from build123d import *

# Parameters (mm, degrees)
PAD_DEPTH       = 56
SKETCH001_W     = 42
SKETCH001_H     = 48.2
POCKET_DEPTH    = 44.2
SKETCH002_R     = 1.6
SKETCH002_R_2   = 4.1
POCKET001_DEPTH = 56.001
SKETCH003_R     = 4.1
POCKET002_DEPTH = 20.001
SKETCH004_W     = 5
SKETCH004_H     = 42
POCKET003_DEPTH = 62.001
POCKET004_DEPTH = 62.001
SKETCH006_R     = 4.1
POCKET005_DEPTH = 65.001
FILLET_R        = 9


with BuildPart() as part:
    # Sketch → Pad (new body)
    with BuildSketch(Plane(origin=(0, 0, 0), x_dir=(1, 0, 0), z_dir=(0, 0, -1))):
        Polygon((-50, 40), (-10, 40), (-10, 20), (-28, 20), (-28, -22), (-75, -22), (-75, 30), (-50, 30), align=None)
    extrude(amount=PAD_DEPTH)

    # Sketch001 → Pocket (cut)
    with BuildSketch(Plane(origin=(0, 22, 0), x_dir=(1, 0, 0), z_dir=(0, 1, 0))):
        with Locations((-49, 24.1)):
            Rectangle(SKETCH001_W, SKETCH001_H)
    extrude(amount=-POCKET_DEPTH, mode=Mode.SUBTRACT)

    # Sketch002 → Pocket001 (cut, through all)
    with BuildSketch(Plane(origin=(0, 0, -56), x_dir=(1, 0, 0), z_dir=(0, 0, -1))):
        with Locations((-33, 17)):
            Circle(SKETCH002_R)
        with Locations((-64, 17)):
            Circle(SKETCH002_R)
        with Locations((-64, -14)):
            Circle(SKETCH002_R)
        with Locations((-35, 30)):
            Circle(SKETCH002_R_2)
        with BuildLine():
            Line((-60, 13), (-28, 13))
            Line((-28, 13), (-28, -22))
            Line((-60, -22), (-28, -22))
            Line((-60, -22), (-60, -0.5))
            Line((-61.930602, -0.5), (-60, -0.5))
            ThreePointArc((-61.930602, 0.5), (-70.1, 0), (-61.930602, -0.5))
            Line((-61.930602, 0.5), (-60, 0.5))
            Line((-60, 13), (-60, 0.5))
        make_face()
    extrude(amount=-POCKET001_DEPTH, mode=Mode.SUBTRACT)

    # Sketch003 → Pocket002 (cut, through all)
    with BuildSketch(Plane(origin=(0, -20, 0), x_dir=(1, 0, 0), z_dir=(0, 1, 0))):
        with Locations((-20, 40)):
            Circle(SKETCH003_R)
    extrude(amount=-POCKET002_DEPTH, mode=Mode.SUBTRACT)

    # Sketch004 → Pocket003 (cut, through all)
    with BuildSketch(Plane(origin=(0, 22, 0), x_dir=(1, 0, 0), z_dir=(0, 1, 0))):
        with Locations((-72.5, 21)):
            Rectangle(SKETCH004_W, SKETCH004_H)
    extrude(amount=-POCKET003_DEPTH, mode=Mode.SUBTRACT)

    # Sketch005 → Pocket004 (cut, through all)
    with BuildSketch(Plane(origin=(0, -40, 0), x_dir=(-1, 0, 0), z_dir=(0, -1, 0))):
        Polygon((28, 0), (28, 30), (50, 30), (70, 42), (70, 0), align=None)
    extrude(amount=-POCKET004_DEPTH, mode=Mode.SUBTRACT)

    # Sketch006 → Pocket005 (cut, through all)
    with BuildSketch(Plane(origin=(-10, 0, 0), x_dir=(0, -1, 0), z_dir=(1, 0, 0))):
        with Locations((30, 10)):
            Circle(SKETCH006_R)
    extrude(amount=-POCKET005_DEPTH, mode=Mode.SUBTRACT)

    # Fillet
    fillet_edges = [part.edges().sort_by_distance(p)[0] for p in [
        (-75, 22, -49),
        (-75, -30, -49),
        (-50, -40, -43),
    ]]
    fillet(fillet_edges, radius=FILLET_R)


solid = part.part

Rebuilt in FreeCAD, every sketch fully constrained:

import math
import FreeCAD as App
import Part
import Sketcher
Q = App.Units.Quantity


def edges_at(feature, points):
    """Names of the edges that pass closest to the given points."""
    edges = feature.Shape.Edges
    near = lambda p: min(range(len(edges)), key=lambda i: edges[i].distToShape(Part.Vertex(*p))[0])
    return sorted({f"Edge{near(p) + 1}" for p in points})

doc = App.newDocument("Part")
params = doc.addObject("Spreadsheet::Sheet", "Params")
for row, (alias, value) in enumerate([
    ("sketch1_width", "40 mm"),
    ("sketch1_width2", "25 mm"),
    ("sketch1_width3", "47 mm"),
    ("sketch1_height", "10 mm"),
    ("sketch1_height2", "52 mm"),
    ("pad1_length", "56 mm"),
    ("sketch2_width", "42 mm"),
    ("sketch2_height", "48.2 mm"),
    ("pocket1_length", "44.2 mm"),
    ("sketch3_diameter", "3.2 mm"),
    ("sketch3_diameter2", "8.2 mm"),
    ("sketch3_width", "32 mm"),
    ("sketch3_height", "35 mm"),
    ("sketch3_height2", "12.5 mm"),
    ("sketch4_diameter", "8.2 mm"),
    ("sketch5_width", "5 mm"),
    ("sketch5_height", "42 mm"),
    ("sketch6_width", "42 mm"),
    ("sketch6_width2", "22 mm"),
    ("sketch6_height", "30 mm"),
    ("sketch7_diameter", "8.2 mm"),
    ("fillet_radius", "9 mm"),
], start=1):
    params.set(f"A{row}", alias)
    params.set(f"B{row}", "=" + value)
    params.setAlias(f"B{row}", alias)

body = doc.addObject("PartDesign::Body", "Body")

sketch1 = body.newObject("Sketcher::SketchObject", "Sketch")
sketch1.AttachmentSupport = (doc.getObject("XY_Plane"), [""])
sketch1.MapMode = "FlatFace"
sketch1.addGeometry(Part.LineSegment(App.Vector(-10, -40, 0), App.Vector(-50, -40, 0)), False)
sketch1.addGeometry(Part.LineSegment(App.Vector(-50, -40, 0), App.Vector(-50, -30, 0)), False)
sketch1.addGeometry(Part.LineSegment(App.Vector(-50, -30, 0), App.Vector(-75, -30, 0)), False)
sketch1.addGeometry(Part.LineSegment(App.Vector(-75, -30, 0), App.Vector(-75, 22, 0)), False)
sketch1.addGeometry(Part.LineSegment(App.Vector(-75, 22, 0), App.Vector(-28, 22, 0)), False)
sketch1.addGeometry(Part.LineSegment(App.Vector(-28, 22, 0), App.Vector(-28, -20, 0)), False)
sketch1.addGeometry(Part.LineSegment(App.Vector(-28, -20, 0), App.Vector(-10, -20, 0)), False)
sketch1.addGeometry(Part.LineSegment(App.Vector(-10, -20, 0), App.Vector(-10, -40, 0)), False)
sketch1.addConstraint(Sketcher.Constraint("Coincident", 0, 2, 1, 1))
sketch1.addConstraint(Sketcher.Constraint("Coincident", 1, 2, 2, 1))
sketch1.addConstraint(Sketcher.Constraint("Coincident", 2, 2, 3, 1))
sketch1.addConstraint(Sketcher.Constraint("Coincident", 3, 2, 4, 1))
sketch1.addConstraint(Sketcher.Constraint("Coincident", 4, 2, 5, 1))
sketch1.addConstraint(Sketcher.Constraint("Coincident", 5, 2, 6, 1))
sketch1.addConstraint(Sketcher.Constraint("Coincident", 6, 2, 7, 1))
sketch1.addConstraint(Sketcher.Constraint("Coincident", 7, 2, 0, 1))
sketch1.addConstraint(Sketcher.Constraint("Horizontal", 0))
sketch1.addConstraint(Sketcher.Constraint("Vertical", 1))
sketch1.addConstraint(Sketcher.Constraint("Horizontal", 2))
sketch1.addConstraint(Sketcher.Constraint("Vertical", 3))
sketch1.addConstraint(Sketcher.Constraint("Horizontal", 4))
sketch1.addConstraint(Sketcher.Constraint("Vertical", 5))
sketch1.addConstraint(Sketcher.Constraint("Horizontal", 6))
sketch1.addConstraint(Sketcher.Constraint("Vertical", 7))
sketch1.addConstraint(Sketcher.Constraint("DistanceX", 0, 2, 0, 1, Q("40 mm")))
sketch1.addConstraint(Sketcher.Constraint("DistanceX", 2, 2, 2, 1, Q("25 mm")))
sketch1.addConstraint(Sketcher.Constraint("DistanceX", 4, 1, 4, 2, Q("47 mm")))
sketch1.addConstraint(Sketcher.Constraint("DistanceY", 1, 1, 1, 2, Q("10 mm")))
sketch1.addConstraint(Sketcher.Constraint("DistanceY", 3, 1, 3, 2, Q("52 mm")))
sketch1.addConstraint(Sketcher.Constraint("DistanceY", 5, 2, 5, 1, Q("42 mm")))
sketch1.addConstraint(Sketcher.Constraint("DistanceX", 0, 2, -1, 1, Q("50 mm")))
sketch1.addConstraint(Sketcher.Constraint("DistanceY", 0, 2, -1, 1, Q("40 mm")))
sketch1.setExpression("Constraints[16]", "Params.sketch1_width")
sketch1.setExpression("Constraints[17]", "Params.sketch1_width2")
sketch1.setExpression("Constraints[18]", "Params.sketch1_width3")
sketch1.setExpression("Constraints[19]", "Params.sketch1_height")
sketch1.setExpression("Constraints[20]", "Params.sketch1_height2")
pad1 = body.newObject("PartDesign::Pad", "Pad")
pad1.Profile = sketch1
pad1.setExpression("Length", "Params.pad1_length")
pad1.Reversed = True

sketch2 = body.newObject("Sketcher::SketchObject", "Sketch001")
sketch2.AttachmentSupport = (doc.getObject("XZ_Plane"), [""])
sketch2.MapMode = "FlatFace"
sketch2.AttachmentOffset = App.Placement(App.Vector(0, 0, -22), App.Rotation())
sketch2.addGeometry(Part.LineSegment(App.Vector(-70, -48.2, 0), App.Vector(-70, 0, 0)), False)
sketch2.addGeometry(Part.LineSegment(App.Vector(-70, 0, 0), App.Vector(-28, 0, 0)), False)
sketch2.addGeometry(Part.LineSegment(App.Vector(-28, 0, 0), App.Vector(-28, -48.2, 0)), False)
sketch2.addGeometry(Part.LineSegment(App.Vector(-28, -48.2, 0), App.Vector(-70, -48.2, 0)), False)
sketch2.addConstraint(Sketcher.Constraint("Coincident", 0, 2, 1, 1))
sketch2.addConstraint(Sketcher.Constraint("Coincident", 1, 2, 2, 1))
sketch2.addConstraint(Sketcher.Constraint("Coincident", 2, 2, 3, 1))
sketch2.addConstraint(Sketcher.Constraint("Coincident", 3, 2, 0, 1))
sketch2.addConstraint(Sketcher.Constraint("Vertical", 0))
sketch2.addConstraint(Sketcher.Constraint("Horizontal", 1))
sketch2.addConstraint(Sketcher.Constraint("Vertical", 2))
sketch2.addConstraint(Sketcher.Constraint("Horizontal", 3))
sketch2.addConstraint(Sketcher.Constraint("PointOnObject", 0, 2, -1))
sketch2.addConstraint(Sketcher.Constraint("DistanceX", 1, 1, 1, 2, Q("42 mm")))
sketch2.addConstraint(Sketcher.Constraint("DistanceY", 0, 1, 0, 2, Q("48.2 mm")))
sketch2.addConstraint(Sketcher.Constraint("DistanceX", 0, 2, -1, 1, Q("70 mm")))
sketch2.setExpression("Constraints[9]", "Params.sketch2_width")
sketch2.setExpression("Constraints[10]", "Params.sketch2_height")
pocket1 = body.newObject("PartDesign::Pocket", "Pocket")
pocket1.Profile = sketch2
pocket1.setExpression("Length", "Params.pocket1_length")
pocket1.Reversed = True

sketch3 = body.newObject("Sketcher::SketchObject", "Sketch002")
sketch3.AttachmentSupport = (doc.getObject("XY_Plane"), [""])
sketch3.MapMode = "FlatFace"
sketch3.AttachmentOffset = App.Placement(App.Vector(0, 0, -56), App.Rotation())
sketch3.addGeometry(Part.Circle(App.Vector(-33, -17, 0), App.Vector(0, 0, 1), 1.6), False)
sketch3.addGeometry(Part.Circle(App.Vector(-64, -17, 0), App.Vector(0, 0, 1), 1.6), False)
sketch3.addGeometry(Part.Circle(App.Vector(-64, 14, 0), App.Vector(0, 0, 1), 1.6), False)
sketch3.addGeometry(Part.Circle(App.Vector(-35, -30, 0), App.Vector(0, 0, 1), 4.1), False)
sketch3.addGeometry(Part.LineSegment(App.Vector(-28, -13, 0), App.Vector(-60, -13, 0)), False)
sketch3.addGeometry(Part.LineSegment(App.Vector(-60, -13, 0), App.Vector(-60, -0.5, 0)), False)
sketch3.addGeometry(Part.LineSegment(App.Vector(-60, -0.5, 0), App.Vector(-61.930602, -0.5, 0)), False)
sketch3.addGeometry(Part.ArcOfCircle(Part.Circle(App.Vector(-66, 0, 0), App.Vector(0, 0, 1), 4.1), math.radians(7.004726), math.radians(352.995274)), False)
sketch3.addGeometry(Part.LineSegment(App.Vector(-61.930602, 0.5, 0), App.Vector(-60, 0.5, 0)), False)
sketch3.addGeometry(Part.LineSegment(App.Vector(-60, 0.5, 0), App.Vector(-60, 22, 0)), False)
sketch3.addGeometry(Part.LineSegment(App.Vector(-60, 22, 0), App.Vector(-28, 22, 0)), False)
sketch3.addGeometry(Part.LineSegment(App.Vector(-28, 22, 0), App.Vector(-28, -13, 0)), False)
sketch3.addConstraint(Sketcher.Constraint("Coincident", 4, 2, 5, 1))
sketch3.addConstraint(Sketcher.Constraint("Coincident", 5, 2, 6, 1))
sketch3.addConstraint(Sketcher.Constraint("Coincident", 6, 2, 7, 2))
sketch3.addConstraint(Sketcher.Constraint("Coincident", 7, 1, 8, 1))
sketch3.addConstraint(Sketcher.Constraint("Coincident", 8, 2, 9, 1))
sketch3.addConstraint(Sketcher.Constraint("Coincident", 9, 2, 10, 1))
sketch3.addConstraint(Sketcher.Constraint("Coincident", 10, 2, 11, 1))
sketch3.addConstraint(Sketcher.Constraint("Coincident", 11, 2, 4, 1))
sketch3.addConstraint(Sketcher.Constraint("Horizontal", 4))
sketch3.addConstraint(Sketcher.Constraint("Vertical", 5))
sketch3.addConstraint(Sketcher.Constraint("Horizontal", 6))
sketch3.addConstraint(Sketcher.Constraint("Horizontal", 8))
sketch3.addConstraint(Sketcher.Constraint("Vertical", 9))
sketch3.addConstraint(Sketcher.Constraint("Horizontal", 10))
sketch3.addConstraint(Sketcher.Constraint("Vertical", 11))
sketch3.addConstraint(Sketcher.Constraint("Equal", 0, 1))
sketch3.addConstraint(Sketcher.Constraint("Equal", 1, 2))
sketch3.addConstraint(Sketcher.Constraint("Equal", 3, 7))
sketch3.addConstraint(Sketcher.Constraint("Symmetric", 6, 2, 7, 1, -1))
sketch3.addConstraint(Sketcher.Constraint("Horizontal", 0, 3, 1, 3))
sketch3.addConstraint(Sketcher.Constraint("Vertical", 1, 3, 2, 3))
sketch3.addConstraint(Sketcher.Constraint("Vertical", 5, 2, 8, 2))
sketch3.addConstraint(Sketcher.Constraint("Diameter", 0, Q("3.2 mm")))
sketch3.addConstraint(Sketcher.Constraint("Diameter", 3, Q("8.2 mm")))
sketch3.addConstraint(Sketcher.Constraint("DistanceX", 4, 2, 4, 1, Q("32 mm")))
sketch3.addConstraint(Sketcher.Constraint("DistanceY", 11, 2, 11, 1, Q("35 mm")))
sketch3.addConstraint(Sketcher.Constraint("DistanceY", 5, 1, 5, 2, Q("12.5 mm")))
sketch3.addConstraint(Sketcher.Constraint("DistanceY", 9, 1, 9, 2, Q("21.5 mm")))
sketch3.addConstraint(Sketcher.Constraint("DistanceX", 0, 3, -1, 1, Q("33 mm")))
sketch3.addConstraint(Sketcher.Constraint("DistanceY", 0, 3, -1, 1, Q("17 mm")))
sketch3.addConstraint(Sketcher.Constraint("DistanceX", 1, 3, -1, 1, Q("64 mm")))
sketch3.addConstraint(Sketcher.Constraint("DistanceY", -1, 1, 2, 3, Q("14 mm")))
sketch3.addConstraint(Sketcher.Constraint("DistanceX", 3, 3, -1, 1, Q("35 mm")))
sketch3.addConstraint(Sketcher.Constraint("DistanceY", 3, 3, -1, 1, Q("30 mm")))
sketch3.addConstraint(Sketcher.Constraint("DistanceX", 7, 3, -1, 1, Q("66 mm")))
sketch3.addConstraint(Sketcher.Constraint("DistanceX", 4, 2, -1, 1, Q("60 mm")))
sketch3.setExpression("Constraints[22]", "Params.sketch3_diameter")
sketch3.setExpression("Constraints[23]", "Params.sketch3_diameter2")
sketch3.setExpression("Constraints[24]", "Params.sketch3_width")
sketch3.setExpression("Constraints[25]", "Params.sketch3_height")
sketch3.setExpression("Constraints[26]", "Params.sketch3_height2")
pocket2 = body.newObject("PartDesign::Pocket", "Pocket001")
pocket2.Profile = sketch3
pocket2.Type = "ThroughAll"
pocket2.Reversed = True

sketch4 = body.newObject("Sketcher::SketchObject", "Sketch003")
sketch4.AttachmentSupport = (doc.getObject("XZ_Plane"), [""])
sketch4.MapMode = "FlatFace"
sketch4.AttachmentOffset = App.Placement(App.Vector(0, 0, 20), App.Rotation())
sketch4.addGeometry(Part.Circle(App.Vector(-20, -40, 0), App.Vector(0, 0, 1), 4.1), False)
sketch4.addConstraint(Sketcher.Constraint("Diameter", 0, Q("8.2 mm")))
sketch4.addConstraint(Sketcher.Constraint("DistanceX", 0, 3, -1, 1, Q("20 mm")))
sketch4.addConstraint(Sketcher.Constraint("DistanceY", 0, 3, -1, 1, Q("40 mm")))
sketch4.setExpression("Constraints[0]", "Params.sketch4_diameter")
pocket3 = body.newObject("PartDesign::Pocket", "Pocket002")
pocket3.Profile = sketch4
pocket3.Type = "ThroughAll"
pocket3.Reversed = True

sketch5 = body.newObject("Sketcher::SketchObject", "Sketch004")
sketch5.AttachmentSupport = (doc.getObject("XZ_Plane"), [""])
sketch5.MapMode = "FlatFace"
sketch5.AttachmentOffset = App.Placement(App.Vector(0, 0, -22), App.Rotation())
sketch5.addGeometry(Part.LineSegment(App.Vector(-75, -42, 0), App.Vector(-75, 0, 0)), False)
sketch5.addGeometry(Part.LineSegment(App.Vector(-75, 0, 0), App.Vector(-70, 0, 0)), False)
sketch5.addGeometry(Part.LineSegment(App.Vector(-70, 0, 0), App.Vector(-70, -42, 0)), False)
sketch5.addGeometry(Part.LineSegment(App.Vector(-70, -42, 0), App.Vector(-75, -42, 0)), False)
sketch5.addConstraint(Sketcher.Constraint("Coincident", 0, 2, 1, 1))
sketch5.addConstraint(Sketcher.Constraint("Coincident", 1, 2, 2, 1))
sketch5.addConstraint(Sketcher.Constraint("Coincident", 2, 2, 3, 1))
sketch5.addConstraint(Sketcher.Constraint("Coincident", 3, 2, 0, 1))
sketch5.addConstraint(Sketcher.Constraint("Vertical", 0))
sketch5.addConstraint(Sketcher.Constraint("Horizontal", 1))
sketch5.addConstraint(Sketcher.Constraint("Vertical", 2))
sketch5.addConstraint(Sketcher.Constraint("Horizontal", 3))
sketch5.addConstraint(Sketcher.Constraint("PointOnObject", 0, 2, -1))
sketch5.addConstraint(Sketcher.Constraint("DistanceX", 1, 1, 1, 2, Q("5 mm")))
sketch5.addConstraint(Sketcher.Constraint("DistanceY", 0, 1, 0, 2, Q("42 mm")))
sketch5.addConstraint(Sketcher.Constraint("DistanceX", 0, 2, -1, 1, Q("75 mm")))
sketch5.setExpression("Constraints[9]", "Params.sketch5_width")
sketch5.setExpression("Constraints[10]", "Params.sketch5_height")
pocket4 = body.newObject("PartDesign::Pocket", "Pocket003")
pocket4.Profile = sketch5
pocket4.Type = "ThroughAll"
pocket4.Reversed = True

sketch6 = body.newObject("Sketcher::SketchObject", "Sketch005")
sketch6.AttachmentSupport = (doc.getObject("XZ_Plane"), [""])
sketch6.MapMode = "FlatFace"
sketch6.AttachmentOffset = App.Placement(App.Vector(0, 0, 40), App.Rotation())
sketch6.addGeometry(Part.LineSegment(App.Vector(-28, -30, 0), App.Vector(-28, 0, 0)), False)
sketch6.addGeometry(Part.LineSegment(App.Vector(-28, 0, 0), App.Vector(-70, 0, 0)), False)
sketch6.addGeometry(Part.LineSegment(App.Vector(-70, 0, 0), App.Vector(-70, -42, 0)), False)
sketch6.addGeometry(Part.LineSegment(App.Vector(-70, -42, 0), App.Vector(-50, -30, 0)), False)
sketch6.addGeometry(Part.LineSegment(App.Vector(-50, -30, 0), App.Vector(-28, -30, 0)), False)
sketch6.addConstraint(Sketcher.Constraint("Coincident", 0, 2, 1, 1))
sketch6.addConstraint(Sketcher.Constraint("Coincident", 1, 2, 2, 1))
sketch6.addConstraint(Sketcher.Constraint("Coincident", 2, 2, 3, 1))
sketch6.addConstraint(Sketcher.Constraint("Coincident", 3, 2, 4, 1))
sketch6.addConstraint(Sketcher.Constraint("Coincident", 4, 2, 0, 1))
sketch6.addConstraint(Sketcher.Constraint("Vertical", 0))
sketch6.addConstraint(Sketcher.Constraint("Horizontal", 1))
sketch6.addConstraint(Sketcher.Constraint("Vertical", 2))
sketch6.addConstraint(Sketcher.Constraint("Horizontal", 4))
sketch6.addConstraint(Sketcher.Constraint("PointOnObject", 0, 2, -1))
sketch6.addConstraint(Sketcher.Constraint("Equal", 1, 2))
sketch6.addConstraint(Sketcher.Constraint("DistanceX", 1, 2, 1, 1, Q("42 mm")))
sketch6.addConstraint(Sketcher.Constraint("DistanceX", 4, 1, 4, 2, Q("22 mm")))
sketch6.addConstraint(Sketcher.Constraint("DistanceY", 0, 1, 0, 2, Q("30 mm")))
sketch6.addConstraint(Sketcher.Constraint("DistanceX", 0, 2, -1, 1, Q("28 mm")))
sketch6.setExpression("Constraints[11]", "Params.sketch6_width")
sketch6.setExpression("Constraints[12]", "Params.sketch6_width2")
sketch6.setExpression("Constraints[13]", "Params.sketch6_height")
pocket5 = body.newObject("PartDesign::Pocket", "Pocket004")
pocket5.Profile = sketch6
pocket5.Type = "ThroughAll"

sketch7 = body.newObject("Sketcher::SketchObject", "Sketch006")
sketch7.AttachmentSupport = (doc.getObject("YZ_Plane"), [""])
sketch7.MapMode = "FlatFace"
sketch7.AttachmentOffset = App.Placement(App.Vector(0, 0, -10), App.Rotation())
sketch7.addGeometry(Part.Circle(App.Vector(-30, -10, 0), App.Vector(0, 0, 1), 4.1), False)
sketch7.addConstraint(Sketcher.Constraint("Diameter", 0, Q("8.2 mm")))
sketch7.addConstraint(Sketcher.Constraint("DistanceX", 0, 3, -1, 1, Q("30 mm")))
sketch7.addConstraint(Sketcher.Constraint("DistanceY", 0, 3, -1, 1, Q("10 mm")))
sketch7.setExpression("Constraints[0]", "Params.sketch7_diameter")
pocket6 = body.newObject("PartDesign::Pocket", "Pocket005")
pocket6.Profile = sketch7
pocket6.Type = "ThroughAll"
doc.recompute()

fillet = body.newObject("PartDesign::Fillet", "Fillet")
fillet.Base = (pocket6, edges_at(pocket6, [(-75, 22, -49), (-75, -30, -49), (-50, -40, -43)]))
fillet.setExpression("Radius", "Params.fillet_radius")

doc.recompute()
